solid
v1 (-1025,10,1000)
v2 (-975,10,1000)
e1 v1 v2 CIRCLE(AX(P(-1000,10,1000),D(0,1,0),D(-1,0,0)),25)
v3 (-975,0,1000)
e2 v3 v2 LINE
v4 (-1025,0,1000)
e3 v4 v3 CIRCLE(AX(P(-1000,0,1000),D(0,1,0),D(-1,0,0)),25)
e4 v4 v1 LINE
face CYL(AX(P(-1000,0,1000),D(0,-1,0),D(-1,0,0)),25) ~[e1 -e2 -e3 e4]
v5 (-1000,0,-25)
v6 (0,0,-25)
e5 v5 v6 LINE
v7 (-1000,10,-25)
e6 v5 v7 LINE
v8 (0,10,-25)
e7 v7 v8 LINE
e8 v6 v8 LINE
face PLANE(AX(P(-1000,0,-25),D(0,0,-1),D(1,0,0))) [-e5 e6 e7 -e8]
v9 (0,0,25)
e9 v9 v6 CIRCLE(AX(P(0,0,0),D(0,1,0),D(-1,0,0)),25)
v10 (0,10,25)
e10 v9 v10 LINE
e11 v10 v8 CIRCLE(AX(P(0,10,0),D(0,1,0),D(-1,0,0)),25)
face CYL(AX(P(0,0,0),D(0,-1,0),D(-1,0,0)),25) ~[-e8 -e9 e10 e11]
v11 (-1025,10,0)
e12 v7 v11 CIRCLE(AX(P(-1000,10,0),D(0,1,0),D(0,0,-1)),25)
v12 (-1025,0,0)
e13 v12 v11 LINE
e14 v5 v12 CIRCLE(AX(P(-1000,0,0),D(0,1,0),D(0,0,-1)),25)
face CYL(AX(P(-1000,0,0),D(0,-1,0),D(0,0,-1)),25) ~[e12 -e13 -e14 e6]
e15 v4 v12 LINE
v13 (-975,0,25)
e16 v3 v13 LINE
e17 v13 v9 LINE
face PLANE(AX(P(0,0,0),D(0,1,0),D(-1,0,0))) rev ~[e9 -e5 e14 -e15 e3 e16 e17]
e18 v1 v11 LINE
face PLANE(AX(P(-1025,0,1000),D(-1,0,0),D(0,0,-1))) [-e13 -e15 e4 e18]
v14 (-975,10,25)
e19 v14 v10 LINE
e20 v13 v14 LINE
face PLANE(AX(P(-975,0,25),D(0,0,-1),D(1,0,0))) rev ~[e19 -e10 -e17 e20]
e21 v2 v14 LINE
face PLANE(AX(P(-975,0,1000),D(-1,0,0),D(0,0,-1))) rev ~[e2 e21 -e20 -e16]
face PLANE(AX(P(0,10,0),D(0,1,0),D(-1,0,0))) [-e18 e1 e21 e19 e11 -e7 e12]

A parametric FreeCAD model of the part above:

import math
import FreeCAD as App
import Part
import Sketcher
Q = App.Units.Quantity

doc = App.newDocument("Part")
body = doc.addObject("PartDesign::Body", "Body")

# Sketch on XZ plane
sketch1 = body.newObject("Sketcher::SketchObject", "Sketch")
sketch1.AttachmentSupport = (doc.getObject("XZ_Plane"), [""])
sketch1.MapMode = "FlatFace"
sketch1.addGeometry([
    Part.ArcOfCircle(Part.Circle(App.Vector(0, 0, 0), App.Vector(0, 0, 1), 25), math.radians(-90), math.radians(90)),  # 0
    Part.LineSegment(App.Vector(0, -25, 0), App.Vector(-1000, -25, 0)),  # 1
    Part.ArcOfCircle(Part.Circle(App.Vector(-1000, 0, 0), App.Vector(0, 0, 1), 25), math.radians(180), math.radians(270)),  # 2
    Part.LineSegment(App.Vector(-1025, 0, 0), App.Vector(-1025, 1000, 0)),  # 3
    Part.ArcOfCircle(Part.Circle(App.Vector(-1000, 1000, 0), App.Vector(0, 0, 1), 25), math.radians(0), math.radians(180)),  # 4
    Part.LineSegment(App.Vector(-975, 1000, 0), App.Vector(-975, 25, 0)),  # 5
    Part.LineSegment(App.Vector(-975, 25, 0), App.Vector(0, 25, 0)),  # 6
], False)
sketch1.addConstraint([
    Sketcher.Constraint("Tangent", 0, 1, 1, 1),
    Sketcher.Constraint("Tangent", 1, 2, 2, 2),
    Sketcher.Constraint("Tangent", 2, 1, 3, 1),
    Sketcher.Constraint("Tangent", 3, 2, 4, 2),
    Sketcher.Constraint("Tangent", 4, 1, 5, 1),
    Sketcher.Constraint("Coincident", 5, 2, 6, 1),
    Sketcher.Constraint("Tangent", 6, 2, 0, 2),
    Sketcher.Constraint("Horizontal", 1),
    Sketcher.Constraint("Vertical", 3),
    Sketcher.Constraint("Vertical", 5),
    Sketcher.Constraint("Horizontal", 6),
    Sketcher.Constraint("Coincident", 0, 3, -1, 1),
    Sketcher.Constraint("Equal", 0, 2),
    Sketcher.Constraint("Equal", 2, 4),
    Sketcher.Constraint("Equal", 1, 3),
    Sketcher.Constraint("Radius", 0, Q("25 mm")),
    Sketcher.Constraint("DistanceX", 1, 2, 1, 1, Q("1000 mm")),
])
pad1 = body.newObject("PartDesign::Pad", "Pad")
pad1.Profile = sketch1
pad1.Length = 10
pad1.Reversed = True

doc.recompute()
